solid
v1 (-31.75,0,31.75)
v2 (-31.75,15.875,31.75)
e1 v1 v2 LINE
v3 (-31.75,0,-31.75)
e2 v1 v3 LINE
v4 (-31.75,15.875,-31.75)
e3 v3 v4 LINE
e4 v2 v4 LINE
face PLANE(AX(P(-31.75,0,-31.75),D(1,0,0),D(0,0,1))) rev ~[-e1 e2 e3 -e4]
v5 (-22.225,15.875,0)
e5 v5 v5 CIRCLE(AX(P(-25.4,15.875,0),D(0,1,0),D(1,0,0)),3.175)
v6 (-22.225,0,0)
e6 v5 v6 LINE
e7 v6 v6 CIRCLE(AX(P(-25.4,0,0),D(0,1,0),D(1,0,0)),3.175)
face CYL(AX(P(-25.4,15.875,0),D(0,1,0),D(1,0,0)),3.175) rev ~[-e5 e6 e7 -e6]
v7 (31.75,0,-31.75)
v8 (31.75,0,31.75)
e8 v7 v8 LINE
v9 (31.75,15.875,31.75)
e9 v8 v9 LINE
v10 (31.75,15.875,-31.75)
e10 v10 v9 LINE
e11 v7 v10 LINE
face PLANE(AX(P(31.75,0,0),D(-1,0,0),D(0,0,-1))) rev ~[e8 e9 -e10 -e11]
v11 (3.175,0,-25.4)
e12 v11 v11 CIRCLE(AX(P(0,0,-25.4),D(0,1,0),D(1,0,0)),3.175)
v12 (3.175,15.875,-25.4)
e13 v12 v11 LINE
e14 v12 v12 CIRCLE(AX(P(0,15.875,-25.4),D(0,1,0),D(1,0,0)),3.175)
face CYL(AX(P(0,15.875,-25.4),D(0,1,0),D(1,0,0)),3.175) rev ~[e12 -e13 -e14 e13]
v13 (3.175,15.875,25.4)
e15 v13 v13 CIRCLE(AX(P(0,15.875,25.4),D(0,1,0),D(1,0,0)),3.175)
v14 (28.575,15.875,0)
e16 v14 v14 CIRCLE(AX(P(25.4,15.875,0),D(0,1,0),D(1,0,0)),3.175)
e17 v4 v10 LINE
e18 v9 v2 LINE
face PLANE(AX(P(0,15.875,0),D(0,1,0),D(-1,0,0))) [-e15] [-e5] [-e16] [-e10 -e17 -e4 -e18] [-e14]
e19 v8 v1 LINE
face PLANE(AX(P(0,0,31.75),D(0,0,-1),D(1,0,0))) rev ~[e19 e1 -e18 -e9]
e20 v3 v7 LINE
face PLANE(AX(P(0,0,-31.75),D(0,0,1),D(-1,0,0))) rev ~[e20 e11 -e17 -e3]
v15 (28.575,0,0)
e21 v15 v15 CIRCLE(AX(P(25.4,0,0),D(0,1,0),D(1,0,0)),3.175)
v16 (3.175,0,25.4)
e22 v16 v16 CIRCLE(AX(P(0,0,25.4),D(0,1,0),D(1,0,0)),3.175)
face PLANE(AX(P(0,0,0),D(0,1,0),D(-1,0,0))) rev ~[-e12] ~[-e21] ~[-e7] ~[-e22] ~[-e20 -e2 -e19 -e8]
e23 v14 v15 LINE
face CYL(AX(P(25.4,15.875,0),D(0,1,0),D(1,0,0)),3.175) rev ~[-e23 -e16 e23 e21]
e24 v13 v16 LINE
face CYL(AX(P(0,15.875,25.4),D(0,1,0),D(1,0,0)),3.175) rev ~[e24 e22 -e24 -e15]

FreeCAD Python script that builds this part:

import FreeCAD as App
import Part
import Sketcher

V = App.Vector
Q = App.Units.Quantity

doc = App.newDocument("Part")
body = doc.addObject("PartDesign::Body", "Body")

sketch1 = body.newObject("Sketcher::SketchObject", "Sketch")
sketch1.AttachmentSupport = (doc.getObject("XZ_Plane"), [""])
sketch1.MapMode = "FlatFace"
sketch1.addGeometry(Part.LineSegment(V(-32, -32, 0), V(-32, 32, 0)), False)
sketch1.addGeometry(Part.LineSegment(V(-32, 32, 0), V(32, 32, 0)), False)
sketch1.addGeometry(Part.LineSegment(V(32, 32, 0), V(32, -32, 0)), False)
sketch1.addGeometry(Part.LineSegment(V(32, -32, 0), V(-32, -32, 0)), False)
sketch1.addConstraint(Sketcher.Constraint("Coincident", 0, 2, 1, 1))
sketch1.addConstraint(Sketcher.Constraint("Coincident", 1, 2, 2, 1))
sketch1.addConstraint(Sketcher.Constraint("Coincident", 2, 2, 3, 1))
sketch1.addConstraint(Sketcher.Constraint("Coincident", 3, 2, 0, 1))
sketch1.addConstraint(Sketcher.Constraint("Vertical", 0))
sketch1.addConstraint(Sketcher.Constraint("Horizontal", 1))
sketch1.addConstraint(Sketcher.Constraint("Vertical", 2))
sketch1.addConstraint(Sketcher.Constraint("Horizontal", 3))
sketch1.addConstraint(Sketcher.Constraint("Symmetric", 0, 2, 2, 2, -1, 1))
sketch1.addConstraint(Sketcher.Constraint("Equal", 3, 0))
sketch1.addConstraint(Sketcher.Constraint("DistanceX", 1, 1, 1, 2, Q("2.5 in")))
pad1 = body.newObject("PartDesign::Pad", "Pad")
pad1.Profile = sketch1
pad1.Length = Q("0.625 in")
pad1.Reversed = True

sketch2 = body.newObject("Sketcher::SketchObject", "Sketch001")
sketch2.AttachmentSupport = (doc.getObject("XZ_Plane"), [""])
sketch2.MapMode = "FlatFace"
sketch2.AttachmentOffset = App.Placement(V(0, 0, -0.625 * 25.4), App.Rotation())
sketch2.addGeometry(Part.Circle(V(25.4, 0, 0), V(0, 0, 1), 3.2), False)
sketch2.addGeometry(Part.Circle(V(0, -25.4, 0), V(0, 0, 1), 3.2), False)
sketch2.addGeometry(Part.Circle(V(-25.4, 0, 0), V(0, 0, 1), 3.2), False)
sketch2.addGeometry(Part.Circle(V(0, 25.4, 0), V(0, 0, 1), 3.2), False)
sketch2.addConstraint(Sketcher.Constraint("Equal", 0, 1))
sketch2.addConstraint(Sketcher.Constraint("Equal", 1, 2))
sketch2.addConstraint(Sketcher.Constraint("Equal", 2, 3))
sketch2.addConstraint(Sketcher.Constraint("Symmetric", 0, 3, 2, 3, -1, 1))
sketch2.addConstraint(Sketcher.Constraint("Symmetric", 1, 3, 3, 3, -1, 1))
sketch2.addConstraint(Sketcher.Constraint("PointOnObject", 0, 3, -1))
sketch2.addConstraint(Sketcher.Constraint("PointOnObject", 1, 3, -2))
sketch2.addConstraint(Sketcher.Constraint("Diameter", 0, Q("0.25 in")))
sketch2.addConstraint(Sketcher.Constraint("DistanceX", -1, 1, 0, 3, Q("1 in")))
sketch2.addConstraint(Sketcher.Constraint("DistanceY", 1, 3, -1, 1, Q("1 in")))
pocket1 = body.newObject("PartDesign::Pocket", "Pocket")
pocket1.Profile = sketch2
pocket1.Length = Q("2 in")
pocket1.Reversed = True

doc.recompute()
